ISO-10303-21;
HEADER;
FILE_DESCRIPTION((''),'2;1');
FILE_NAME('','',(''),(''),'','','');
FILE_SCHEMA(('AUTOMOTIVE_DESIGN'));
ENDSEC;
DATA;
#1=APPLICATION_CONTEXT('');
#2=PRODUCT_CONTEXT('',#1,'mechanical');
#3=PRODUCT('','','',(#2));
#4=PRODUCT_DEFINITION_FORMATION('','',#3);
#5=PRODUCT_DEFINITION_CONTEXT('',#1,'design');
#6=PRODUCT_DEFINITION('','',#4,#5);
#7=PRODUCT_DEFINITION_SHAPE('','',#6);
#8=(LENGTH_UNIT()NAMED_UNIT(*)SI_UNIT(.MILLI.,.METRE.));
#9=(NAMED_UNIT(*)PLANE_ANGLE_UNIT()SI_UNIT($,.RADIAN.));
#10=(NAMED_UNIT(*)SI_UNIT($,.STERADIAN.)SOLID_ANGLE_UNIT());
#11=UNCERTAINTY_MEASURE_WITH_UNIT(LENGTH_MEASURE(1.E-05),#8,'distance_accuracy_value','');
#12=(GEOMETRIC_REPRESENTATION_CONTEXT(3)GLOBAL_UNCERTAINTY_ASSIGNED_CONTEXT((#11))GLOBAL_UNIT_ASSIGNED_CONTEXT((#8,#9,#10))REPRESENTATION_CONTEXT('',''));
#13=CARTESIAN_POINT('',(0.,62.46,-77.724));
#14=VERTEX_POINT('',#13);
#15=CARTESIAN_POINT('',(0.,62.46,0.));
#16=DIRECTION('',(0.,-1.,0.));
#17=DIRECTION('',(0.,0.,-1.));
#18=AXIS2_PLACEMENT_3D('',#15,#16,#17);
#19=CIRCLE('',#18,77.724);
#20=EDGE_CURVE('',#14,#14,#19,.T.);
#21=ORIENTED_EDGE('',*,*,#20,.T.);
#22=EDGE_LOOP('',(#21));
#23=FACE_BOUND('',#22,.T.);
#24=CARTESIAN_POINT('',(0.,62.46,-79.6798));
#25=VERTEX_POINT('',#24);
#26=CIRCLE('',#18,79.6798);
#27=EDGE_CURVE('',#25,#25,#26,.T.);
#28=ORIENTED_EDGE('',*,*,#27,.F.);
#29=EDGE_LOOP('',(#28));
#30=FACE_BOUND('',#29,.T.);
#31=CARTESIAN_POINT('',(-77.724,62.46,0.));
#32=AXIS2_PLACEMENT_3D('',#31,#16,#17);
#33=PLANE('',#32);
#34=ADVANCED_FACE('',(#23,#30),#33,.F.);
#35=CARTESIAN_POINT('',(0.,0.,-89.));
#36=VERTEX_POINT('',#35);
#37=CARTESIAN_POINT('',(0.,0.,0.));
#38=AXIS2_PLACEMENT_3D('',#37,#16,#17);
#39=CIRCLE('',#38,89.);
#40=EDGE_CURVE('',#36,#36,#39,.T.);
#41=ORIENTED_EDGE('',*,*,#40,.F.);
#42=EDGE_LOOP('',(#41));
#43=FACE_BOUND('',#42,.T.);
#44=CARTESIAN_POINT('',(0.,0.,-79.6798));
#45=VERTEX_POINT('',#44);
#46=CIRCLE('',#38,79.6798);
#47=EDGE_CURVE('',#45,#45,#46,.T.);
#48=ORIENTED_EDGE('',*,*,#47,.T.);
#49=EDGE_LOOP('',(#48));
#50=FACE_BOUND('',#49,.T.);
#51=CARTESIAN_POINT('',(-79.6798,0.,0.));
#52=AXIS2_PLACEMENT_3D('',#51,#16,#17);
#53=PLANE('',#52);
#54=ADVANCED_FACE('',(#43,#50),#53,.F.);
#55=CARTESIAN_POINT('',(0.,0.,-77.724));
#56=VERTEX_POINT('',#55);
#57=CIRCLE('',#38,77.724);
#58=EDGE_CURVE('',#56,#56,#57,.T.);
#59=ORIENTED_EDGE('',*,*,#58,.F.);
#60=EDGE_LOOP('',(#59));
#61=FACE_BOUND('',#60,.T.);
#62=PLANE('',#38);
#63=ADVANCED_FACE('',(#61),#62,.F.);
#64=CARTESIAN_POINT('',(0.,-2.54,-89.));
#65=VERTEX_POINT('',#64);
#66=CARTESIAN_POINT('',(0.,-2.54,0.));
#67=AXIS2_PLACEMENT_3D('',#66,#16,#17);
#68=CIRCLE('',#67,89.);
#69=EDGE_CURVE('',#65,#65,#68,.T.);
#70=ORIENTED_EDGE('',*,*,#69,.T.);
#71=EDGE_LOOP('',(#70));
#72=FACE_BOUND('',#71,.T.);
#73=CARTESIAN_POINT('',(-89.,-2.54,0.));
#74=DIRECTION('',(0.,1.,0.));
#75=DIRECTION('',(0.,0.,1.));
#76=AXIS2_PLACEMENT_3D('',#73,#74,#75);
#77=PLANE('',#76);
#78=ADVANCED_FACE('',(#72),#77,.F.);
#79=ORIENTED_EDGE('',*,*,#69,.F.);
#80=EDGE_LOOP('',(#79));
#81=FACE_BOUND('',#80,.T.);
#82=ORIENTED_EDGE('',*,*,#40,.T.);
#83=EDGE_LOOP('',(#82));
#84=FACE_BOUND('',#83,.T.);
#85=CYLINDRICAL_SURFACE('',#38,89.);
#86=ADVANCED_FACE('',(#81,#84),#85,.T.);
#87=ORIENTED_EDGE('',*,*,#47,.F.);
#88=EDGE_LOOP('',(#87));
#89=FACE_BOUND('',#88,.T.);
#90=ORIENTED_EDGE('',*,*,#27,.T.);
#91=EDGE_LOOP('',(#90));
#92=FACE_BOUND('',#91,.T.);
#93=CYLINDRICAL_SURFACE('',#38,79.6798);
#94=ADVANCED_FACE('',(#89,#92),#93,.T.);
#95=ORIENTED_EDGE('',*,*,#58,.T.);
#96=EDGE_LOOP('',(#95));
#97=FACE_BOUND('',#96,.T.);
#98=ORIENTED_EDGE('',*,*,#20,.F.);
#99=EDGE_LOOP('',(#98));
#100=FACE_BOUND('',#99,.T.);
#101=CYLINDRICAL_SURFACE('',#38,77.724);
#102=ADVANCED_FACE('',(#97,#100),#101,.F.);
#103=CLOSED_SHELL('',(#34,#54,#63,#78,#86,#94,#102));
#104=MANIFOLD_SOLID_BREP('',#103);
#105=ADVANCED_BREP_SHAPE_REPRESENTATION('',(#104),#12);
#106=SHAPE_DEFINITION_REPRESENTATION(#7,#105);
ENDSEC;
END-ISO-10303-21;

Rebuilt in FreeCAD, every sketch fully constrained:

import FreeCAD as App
import Part
import Sketcher
Q = App.Units.Quantity


def add_polygon(sketch, points):
    """Adds a closed chain of lines whose ends are joined by coincident constraints."""
    first, n = sketch.GeometryCount, len(points)
    for a, b in zip(points, points[1:] + points[:1]):
        sketch.addGeometry(Part.LineSegment(App.Vector(*a, 0), App.Vector(*b, 0)), False)
    for i in range(n):
        sketch.addConstraint(Sketcher.Constraint("Coincident", first + i, 2, first + (i + 1) % n, 1))

doc = App.newDocument("Part")
body = doc.addObject("PartDesign::Body", "Body")

sketch1 = body.newObject("Sketcher::SketchObject", "Sketch")
sketch1.AttachmentSupport = (doc.getObject("XY_Plane"), [""])
sketch1.MapMode = "FlatFace"
add_polygon(sketch1, [(-77.7, 0), (-77.7, 62.5), (-79.7, 62.5), (-79.7, 0), (-89, 0), (-89, -2.5), (0, -2.5), (0, 0)])
sketch1.addConstraint(Sketcher.Constraint("Vertical", 0))
sketch1.addConstraint(Sketcher.Constraint("Horizontal", 1))
sketch1.addConstraint(Sketcher.Constraint("Vertical", 2))
sketch1.addConstraint(Sketcher.Constraint("Horizontal", 3))
sketch1.addConstraint(Sketcher.Constraint("Vertical", 4))
sketch1.addConstraint(Sketcher.Constraint("Horizontal", 5))
sketch1.addConstraint(Sketcher.Constraint("Vertical", 6))
sketch1.addConstraint(Sketcher.Constraint("Horizontal", 7))
sketch1.addConstraint(Sketcher.Constraint("Coincident", 6, 2, -1, 1))
sketch1.addConstraint(Sketcher.Constraint("PointOnObject", 2, 2, -1))
sketch1.addConstraint(Sketcher.Constraint("DistanceY", 4, 2, 4, 1, Q("0.1 in")))
sketch1.addConstraint(Sketcher.Constraint("DistanceX", 7, 2, 7, 1, Q("3.06 in")))
sketch1.addConstraint(Sketcher.Constraint("DistanceX", 1, 2, 1, 1, Q("0.077 in")))
sketch1.addConstraint(Sketcher.Constraint("DistanceX", 3, 2, 3, 1, 9.3202))
sketch1.addConstraint(Sketcher.Constraint("DistanceY", 0, 1, 0, 2, 62.46))
revolution = body.newObject("PartDesign::Revolution", "Revolution")
revolution.Profile = sketch1
revolution.ReferenceAxis = (sketch1, ["V_Axis"])
revolution.Angle = 360

doc.recompute()
